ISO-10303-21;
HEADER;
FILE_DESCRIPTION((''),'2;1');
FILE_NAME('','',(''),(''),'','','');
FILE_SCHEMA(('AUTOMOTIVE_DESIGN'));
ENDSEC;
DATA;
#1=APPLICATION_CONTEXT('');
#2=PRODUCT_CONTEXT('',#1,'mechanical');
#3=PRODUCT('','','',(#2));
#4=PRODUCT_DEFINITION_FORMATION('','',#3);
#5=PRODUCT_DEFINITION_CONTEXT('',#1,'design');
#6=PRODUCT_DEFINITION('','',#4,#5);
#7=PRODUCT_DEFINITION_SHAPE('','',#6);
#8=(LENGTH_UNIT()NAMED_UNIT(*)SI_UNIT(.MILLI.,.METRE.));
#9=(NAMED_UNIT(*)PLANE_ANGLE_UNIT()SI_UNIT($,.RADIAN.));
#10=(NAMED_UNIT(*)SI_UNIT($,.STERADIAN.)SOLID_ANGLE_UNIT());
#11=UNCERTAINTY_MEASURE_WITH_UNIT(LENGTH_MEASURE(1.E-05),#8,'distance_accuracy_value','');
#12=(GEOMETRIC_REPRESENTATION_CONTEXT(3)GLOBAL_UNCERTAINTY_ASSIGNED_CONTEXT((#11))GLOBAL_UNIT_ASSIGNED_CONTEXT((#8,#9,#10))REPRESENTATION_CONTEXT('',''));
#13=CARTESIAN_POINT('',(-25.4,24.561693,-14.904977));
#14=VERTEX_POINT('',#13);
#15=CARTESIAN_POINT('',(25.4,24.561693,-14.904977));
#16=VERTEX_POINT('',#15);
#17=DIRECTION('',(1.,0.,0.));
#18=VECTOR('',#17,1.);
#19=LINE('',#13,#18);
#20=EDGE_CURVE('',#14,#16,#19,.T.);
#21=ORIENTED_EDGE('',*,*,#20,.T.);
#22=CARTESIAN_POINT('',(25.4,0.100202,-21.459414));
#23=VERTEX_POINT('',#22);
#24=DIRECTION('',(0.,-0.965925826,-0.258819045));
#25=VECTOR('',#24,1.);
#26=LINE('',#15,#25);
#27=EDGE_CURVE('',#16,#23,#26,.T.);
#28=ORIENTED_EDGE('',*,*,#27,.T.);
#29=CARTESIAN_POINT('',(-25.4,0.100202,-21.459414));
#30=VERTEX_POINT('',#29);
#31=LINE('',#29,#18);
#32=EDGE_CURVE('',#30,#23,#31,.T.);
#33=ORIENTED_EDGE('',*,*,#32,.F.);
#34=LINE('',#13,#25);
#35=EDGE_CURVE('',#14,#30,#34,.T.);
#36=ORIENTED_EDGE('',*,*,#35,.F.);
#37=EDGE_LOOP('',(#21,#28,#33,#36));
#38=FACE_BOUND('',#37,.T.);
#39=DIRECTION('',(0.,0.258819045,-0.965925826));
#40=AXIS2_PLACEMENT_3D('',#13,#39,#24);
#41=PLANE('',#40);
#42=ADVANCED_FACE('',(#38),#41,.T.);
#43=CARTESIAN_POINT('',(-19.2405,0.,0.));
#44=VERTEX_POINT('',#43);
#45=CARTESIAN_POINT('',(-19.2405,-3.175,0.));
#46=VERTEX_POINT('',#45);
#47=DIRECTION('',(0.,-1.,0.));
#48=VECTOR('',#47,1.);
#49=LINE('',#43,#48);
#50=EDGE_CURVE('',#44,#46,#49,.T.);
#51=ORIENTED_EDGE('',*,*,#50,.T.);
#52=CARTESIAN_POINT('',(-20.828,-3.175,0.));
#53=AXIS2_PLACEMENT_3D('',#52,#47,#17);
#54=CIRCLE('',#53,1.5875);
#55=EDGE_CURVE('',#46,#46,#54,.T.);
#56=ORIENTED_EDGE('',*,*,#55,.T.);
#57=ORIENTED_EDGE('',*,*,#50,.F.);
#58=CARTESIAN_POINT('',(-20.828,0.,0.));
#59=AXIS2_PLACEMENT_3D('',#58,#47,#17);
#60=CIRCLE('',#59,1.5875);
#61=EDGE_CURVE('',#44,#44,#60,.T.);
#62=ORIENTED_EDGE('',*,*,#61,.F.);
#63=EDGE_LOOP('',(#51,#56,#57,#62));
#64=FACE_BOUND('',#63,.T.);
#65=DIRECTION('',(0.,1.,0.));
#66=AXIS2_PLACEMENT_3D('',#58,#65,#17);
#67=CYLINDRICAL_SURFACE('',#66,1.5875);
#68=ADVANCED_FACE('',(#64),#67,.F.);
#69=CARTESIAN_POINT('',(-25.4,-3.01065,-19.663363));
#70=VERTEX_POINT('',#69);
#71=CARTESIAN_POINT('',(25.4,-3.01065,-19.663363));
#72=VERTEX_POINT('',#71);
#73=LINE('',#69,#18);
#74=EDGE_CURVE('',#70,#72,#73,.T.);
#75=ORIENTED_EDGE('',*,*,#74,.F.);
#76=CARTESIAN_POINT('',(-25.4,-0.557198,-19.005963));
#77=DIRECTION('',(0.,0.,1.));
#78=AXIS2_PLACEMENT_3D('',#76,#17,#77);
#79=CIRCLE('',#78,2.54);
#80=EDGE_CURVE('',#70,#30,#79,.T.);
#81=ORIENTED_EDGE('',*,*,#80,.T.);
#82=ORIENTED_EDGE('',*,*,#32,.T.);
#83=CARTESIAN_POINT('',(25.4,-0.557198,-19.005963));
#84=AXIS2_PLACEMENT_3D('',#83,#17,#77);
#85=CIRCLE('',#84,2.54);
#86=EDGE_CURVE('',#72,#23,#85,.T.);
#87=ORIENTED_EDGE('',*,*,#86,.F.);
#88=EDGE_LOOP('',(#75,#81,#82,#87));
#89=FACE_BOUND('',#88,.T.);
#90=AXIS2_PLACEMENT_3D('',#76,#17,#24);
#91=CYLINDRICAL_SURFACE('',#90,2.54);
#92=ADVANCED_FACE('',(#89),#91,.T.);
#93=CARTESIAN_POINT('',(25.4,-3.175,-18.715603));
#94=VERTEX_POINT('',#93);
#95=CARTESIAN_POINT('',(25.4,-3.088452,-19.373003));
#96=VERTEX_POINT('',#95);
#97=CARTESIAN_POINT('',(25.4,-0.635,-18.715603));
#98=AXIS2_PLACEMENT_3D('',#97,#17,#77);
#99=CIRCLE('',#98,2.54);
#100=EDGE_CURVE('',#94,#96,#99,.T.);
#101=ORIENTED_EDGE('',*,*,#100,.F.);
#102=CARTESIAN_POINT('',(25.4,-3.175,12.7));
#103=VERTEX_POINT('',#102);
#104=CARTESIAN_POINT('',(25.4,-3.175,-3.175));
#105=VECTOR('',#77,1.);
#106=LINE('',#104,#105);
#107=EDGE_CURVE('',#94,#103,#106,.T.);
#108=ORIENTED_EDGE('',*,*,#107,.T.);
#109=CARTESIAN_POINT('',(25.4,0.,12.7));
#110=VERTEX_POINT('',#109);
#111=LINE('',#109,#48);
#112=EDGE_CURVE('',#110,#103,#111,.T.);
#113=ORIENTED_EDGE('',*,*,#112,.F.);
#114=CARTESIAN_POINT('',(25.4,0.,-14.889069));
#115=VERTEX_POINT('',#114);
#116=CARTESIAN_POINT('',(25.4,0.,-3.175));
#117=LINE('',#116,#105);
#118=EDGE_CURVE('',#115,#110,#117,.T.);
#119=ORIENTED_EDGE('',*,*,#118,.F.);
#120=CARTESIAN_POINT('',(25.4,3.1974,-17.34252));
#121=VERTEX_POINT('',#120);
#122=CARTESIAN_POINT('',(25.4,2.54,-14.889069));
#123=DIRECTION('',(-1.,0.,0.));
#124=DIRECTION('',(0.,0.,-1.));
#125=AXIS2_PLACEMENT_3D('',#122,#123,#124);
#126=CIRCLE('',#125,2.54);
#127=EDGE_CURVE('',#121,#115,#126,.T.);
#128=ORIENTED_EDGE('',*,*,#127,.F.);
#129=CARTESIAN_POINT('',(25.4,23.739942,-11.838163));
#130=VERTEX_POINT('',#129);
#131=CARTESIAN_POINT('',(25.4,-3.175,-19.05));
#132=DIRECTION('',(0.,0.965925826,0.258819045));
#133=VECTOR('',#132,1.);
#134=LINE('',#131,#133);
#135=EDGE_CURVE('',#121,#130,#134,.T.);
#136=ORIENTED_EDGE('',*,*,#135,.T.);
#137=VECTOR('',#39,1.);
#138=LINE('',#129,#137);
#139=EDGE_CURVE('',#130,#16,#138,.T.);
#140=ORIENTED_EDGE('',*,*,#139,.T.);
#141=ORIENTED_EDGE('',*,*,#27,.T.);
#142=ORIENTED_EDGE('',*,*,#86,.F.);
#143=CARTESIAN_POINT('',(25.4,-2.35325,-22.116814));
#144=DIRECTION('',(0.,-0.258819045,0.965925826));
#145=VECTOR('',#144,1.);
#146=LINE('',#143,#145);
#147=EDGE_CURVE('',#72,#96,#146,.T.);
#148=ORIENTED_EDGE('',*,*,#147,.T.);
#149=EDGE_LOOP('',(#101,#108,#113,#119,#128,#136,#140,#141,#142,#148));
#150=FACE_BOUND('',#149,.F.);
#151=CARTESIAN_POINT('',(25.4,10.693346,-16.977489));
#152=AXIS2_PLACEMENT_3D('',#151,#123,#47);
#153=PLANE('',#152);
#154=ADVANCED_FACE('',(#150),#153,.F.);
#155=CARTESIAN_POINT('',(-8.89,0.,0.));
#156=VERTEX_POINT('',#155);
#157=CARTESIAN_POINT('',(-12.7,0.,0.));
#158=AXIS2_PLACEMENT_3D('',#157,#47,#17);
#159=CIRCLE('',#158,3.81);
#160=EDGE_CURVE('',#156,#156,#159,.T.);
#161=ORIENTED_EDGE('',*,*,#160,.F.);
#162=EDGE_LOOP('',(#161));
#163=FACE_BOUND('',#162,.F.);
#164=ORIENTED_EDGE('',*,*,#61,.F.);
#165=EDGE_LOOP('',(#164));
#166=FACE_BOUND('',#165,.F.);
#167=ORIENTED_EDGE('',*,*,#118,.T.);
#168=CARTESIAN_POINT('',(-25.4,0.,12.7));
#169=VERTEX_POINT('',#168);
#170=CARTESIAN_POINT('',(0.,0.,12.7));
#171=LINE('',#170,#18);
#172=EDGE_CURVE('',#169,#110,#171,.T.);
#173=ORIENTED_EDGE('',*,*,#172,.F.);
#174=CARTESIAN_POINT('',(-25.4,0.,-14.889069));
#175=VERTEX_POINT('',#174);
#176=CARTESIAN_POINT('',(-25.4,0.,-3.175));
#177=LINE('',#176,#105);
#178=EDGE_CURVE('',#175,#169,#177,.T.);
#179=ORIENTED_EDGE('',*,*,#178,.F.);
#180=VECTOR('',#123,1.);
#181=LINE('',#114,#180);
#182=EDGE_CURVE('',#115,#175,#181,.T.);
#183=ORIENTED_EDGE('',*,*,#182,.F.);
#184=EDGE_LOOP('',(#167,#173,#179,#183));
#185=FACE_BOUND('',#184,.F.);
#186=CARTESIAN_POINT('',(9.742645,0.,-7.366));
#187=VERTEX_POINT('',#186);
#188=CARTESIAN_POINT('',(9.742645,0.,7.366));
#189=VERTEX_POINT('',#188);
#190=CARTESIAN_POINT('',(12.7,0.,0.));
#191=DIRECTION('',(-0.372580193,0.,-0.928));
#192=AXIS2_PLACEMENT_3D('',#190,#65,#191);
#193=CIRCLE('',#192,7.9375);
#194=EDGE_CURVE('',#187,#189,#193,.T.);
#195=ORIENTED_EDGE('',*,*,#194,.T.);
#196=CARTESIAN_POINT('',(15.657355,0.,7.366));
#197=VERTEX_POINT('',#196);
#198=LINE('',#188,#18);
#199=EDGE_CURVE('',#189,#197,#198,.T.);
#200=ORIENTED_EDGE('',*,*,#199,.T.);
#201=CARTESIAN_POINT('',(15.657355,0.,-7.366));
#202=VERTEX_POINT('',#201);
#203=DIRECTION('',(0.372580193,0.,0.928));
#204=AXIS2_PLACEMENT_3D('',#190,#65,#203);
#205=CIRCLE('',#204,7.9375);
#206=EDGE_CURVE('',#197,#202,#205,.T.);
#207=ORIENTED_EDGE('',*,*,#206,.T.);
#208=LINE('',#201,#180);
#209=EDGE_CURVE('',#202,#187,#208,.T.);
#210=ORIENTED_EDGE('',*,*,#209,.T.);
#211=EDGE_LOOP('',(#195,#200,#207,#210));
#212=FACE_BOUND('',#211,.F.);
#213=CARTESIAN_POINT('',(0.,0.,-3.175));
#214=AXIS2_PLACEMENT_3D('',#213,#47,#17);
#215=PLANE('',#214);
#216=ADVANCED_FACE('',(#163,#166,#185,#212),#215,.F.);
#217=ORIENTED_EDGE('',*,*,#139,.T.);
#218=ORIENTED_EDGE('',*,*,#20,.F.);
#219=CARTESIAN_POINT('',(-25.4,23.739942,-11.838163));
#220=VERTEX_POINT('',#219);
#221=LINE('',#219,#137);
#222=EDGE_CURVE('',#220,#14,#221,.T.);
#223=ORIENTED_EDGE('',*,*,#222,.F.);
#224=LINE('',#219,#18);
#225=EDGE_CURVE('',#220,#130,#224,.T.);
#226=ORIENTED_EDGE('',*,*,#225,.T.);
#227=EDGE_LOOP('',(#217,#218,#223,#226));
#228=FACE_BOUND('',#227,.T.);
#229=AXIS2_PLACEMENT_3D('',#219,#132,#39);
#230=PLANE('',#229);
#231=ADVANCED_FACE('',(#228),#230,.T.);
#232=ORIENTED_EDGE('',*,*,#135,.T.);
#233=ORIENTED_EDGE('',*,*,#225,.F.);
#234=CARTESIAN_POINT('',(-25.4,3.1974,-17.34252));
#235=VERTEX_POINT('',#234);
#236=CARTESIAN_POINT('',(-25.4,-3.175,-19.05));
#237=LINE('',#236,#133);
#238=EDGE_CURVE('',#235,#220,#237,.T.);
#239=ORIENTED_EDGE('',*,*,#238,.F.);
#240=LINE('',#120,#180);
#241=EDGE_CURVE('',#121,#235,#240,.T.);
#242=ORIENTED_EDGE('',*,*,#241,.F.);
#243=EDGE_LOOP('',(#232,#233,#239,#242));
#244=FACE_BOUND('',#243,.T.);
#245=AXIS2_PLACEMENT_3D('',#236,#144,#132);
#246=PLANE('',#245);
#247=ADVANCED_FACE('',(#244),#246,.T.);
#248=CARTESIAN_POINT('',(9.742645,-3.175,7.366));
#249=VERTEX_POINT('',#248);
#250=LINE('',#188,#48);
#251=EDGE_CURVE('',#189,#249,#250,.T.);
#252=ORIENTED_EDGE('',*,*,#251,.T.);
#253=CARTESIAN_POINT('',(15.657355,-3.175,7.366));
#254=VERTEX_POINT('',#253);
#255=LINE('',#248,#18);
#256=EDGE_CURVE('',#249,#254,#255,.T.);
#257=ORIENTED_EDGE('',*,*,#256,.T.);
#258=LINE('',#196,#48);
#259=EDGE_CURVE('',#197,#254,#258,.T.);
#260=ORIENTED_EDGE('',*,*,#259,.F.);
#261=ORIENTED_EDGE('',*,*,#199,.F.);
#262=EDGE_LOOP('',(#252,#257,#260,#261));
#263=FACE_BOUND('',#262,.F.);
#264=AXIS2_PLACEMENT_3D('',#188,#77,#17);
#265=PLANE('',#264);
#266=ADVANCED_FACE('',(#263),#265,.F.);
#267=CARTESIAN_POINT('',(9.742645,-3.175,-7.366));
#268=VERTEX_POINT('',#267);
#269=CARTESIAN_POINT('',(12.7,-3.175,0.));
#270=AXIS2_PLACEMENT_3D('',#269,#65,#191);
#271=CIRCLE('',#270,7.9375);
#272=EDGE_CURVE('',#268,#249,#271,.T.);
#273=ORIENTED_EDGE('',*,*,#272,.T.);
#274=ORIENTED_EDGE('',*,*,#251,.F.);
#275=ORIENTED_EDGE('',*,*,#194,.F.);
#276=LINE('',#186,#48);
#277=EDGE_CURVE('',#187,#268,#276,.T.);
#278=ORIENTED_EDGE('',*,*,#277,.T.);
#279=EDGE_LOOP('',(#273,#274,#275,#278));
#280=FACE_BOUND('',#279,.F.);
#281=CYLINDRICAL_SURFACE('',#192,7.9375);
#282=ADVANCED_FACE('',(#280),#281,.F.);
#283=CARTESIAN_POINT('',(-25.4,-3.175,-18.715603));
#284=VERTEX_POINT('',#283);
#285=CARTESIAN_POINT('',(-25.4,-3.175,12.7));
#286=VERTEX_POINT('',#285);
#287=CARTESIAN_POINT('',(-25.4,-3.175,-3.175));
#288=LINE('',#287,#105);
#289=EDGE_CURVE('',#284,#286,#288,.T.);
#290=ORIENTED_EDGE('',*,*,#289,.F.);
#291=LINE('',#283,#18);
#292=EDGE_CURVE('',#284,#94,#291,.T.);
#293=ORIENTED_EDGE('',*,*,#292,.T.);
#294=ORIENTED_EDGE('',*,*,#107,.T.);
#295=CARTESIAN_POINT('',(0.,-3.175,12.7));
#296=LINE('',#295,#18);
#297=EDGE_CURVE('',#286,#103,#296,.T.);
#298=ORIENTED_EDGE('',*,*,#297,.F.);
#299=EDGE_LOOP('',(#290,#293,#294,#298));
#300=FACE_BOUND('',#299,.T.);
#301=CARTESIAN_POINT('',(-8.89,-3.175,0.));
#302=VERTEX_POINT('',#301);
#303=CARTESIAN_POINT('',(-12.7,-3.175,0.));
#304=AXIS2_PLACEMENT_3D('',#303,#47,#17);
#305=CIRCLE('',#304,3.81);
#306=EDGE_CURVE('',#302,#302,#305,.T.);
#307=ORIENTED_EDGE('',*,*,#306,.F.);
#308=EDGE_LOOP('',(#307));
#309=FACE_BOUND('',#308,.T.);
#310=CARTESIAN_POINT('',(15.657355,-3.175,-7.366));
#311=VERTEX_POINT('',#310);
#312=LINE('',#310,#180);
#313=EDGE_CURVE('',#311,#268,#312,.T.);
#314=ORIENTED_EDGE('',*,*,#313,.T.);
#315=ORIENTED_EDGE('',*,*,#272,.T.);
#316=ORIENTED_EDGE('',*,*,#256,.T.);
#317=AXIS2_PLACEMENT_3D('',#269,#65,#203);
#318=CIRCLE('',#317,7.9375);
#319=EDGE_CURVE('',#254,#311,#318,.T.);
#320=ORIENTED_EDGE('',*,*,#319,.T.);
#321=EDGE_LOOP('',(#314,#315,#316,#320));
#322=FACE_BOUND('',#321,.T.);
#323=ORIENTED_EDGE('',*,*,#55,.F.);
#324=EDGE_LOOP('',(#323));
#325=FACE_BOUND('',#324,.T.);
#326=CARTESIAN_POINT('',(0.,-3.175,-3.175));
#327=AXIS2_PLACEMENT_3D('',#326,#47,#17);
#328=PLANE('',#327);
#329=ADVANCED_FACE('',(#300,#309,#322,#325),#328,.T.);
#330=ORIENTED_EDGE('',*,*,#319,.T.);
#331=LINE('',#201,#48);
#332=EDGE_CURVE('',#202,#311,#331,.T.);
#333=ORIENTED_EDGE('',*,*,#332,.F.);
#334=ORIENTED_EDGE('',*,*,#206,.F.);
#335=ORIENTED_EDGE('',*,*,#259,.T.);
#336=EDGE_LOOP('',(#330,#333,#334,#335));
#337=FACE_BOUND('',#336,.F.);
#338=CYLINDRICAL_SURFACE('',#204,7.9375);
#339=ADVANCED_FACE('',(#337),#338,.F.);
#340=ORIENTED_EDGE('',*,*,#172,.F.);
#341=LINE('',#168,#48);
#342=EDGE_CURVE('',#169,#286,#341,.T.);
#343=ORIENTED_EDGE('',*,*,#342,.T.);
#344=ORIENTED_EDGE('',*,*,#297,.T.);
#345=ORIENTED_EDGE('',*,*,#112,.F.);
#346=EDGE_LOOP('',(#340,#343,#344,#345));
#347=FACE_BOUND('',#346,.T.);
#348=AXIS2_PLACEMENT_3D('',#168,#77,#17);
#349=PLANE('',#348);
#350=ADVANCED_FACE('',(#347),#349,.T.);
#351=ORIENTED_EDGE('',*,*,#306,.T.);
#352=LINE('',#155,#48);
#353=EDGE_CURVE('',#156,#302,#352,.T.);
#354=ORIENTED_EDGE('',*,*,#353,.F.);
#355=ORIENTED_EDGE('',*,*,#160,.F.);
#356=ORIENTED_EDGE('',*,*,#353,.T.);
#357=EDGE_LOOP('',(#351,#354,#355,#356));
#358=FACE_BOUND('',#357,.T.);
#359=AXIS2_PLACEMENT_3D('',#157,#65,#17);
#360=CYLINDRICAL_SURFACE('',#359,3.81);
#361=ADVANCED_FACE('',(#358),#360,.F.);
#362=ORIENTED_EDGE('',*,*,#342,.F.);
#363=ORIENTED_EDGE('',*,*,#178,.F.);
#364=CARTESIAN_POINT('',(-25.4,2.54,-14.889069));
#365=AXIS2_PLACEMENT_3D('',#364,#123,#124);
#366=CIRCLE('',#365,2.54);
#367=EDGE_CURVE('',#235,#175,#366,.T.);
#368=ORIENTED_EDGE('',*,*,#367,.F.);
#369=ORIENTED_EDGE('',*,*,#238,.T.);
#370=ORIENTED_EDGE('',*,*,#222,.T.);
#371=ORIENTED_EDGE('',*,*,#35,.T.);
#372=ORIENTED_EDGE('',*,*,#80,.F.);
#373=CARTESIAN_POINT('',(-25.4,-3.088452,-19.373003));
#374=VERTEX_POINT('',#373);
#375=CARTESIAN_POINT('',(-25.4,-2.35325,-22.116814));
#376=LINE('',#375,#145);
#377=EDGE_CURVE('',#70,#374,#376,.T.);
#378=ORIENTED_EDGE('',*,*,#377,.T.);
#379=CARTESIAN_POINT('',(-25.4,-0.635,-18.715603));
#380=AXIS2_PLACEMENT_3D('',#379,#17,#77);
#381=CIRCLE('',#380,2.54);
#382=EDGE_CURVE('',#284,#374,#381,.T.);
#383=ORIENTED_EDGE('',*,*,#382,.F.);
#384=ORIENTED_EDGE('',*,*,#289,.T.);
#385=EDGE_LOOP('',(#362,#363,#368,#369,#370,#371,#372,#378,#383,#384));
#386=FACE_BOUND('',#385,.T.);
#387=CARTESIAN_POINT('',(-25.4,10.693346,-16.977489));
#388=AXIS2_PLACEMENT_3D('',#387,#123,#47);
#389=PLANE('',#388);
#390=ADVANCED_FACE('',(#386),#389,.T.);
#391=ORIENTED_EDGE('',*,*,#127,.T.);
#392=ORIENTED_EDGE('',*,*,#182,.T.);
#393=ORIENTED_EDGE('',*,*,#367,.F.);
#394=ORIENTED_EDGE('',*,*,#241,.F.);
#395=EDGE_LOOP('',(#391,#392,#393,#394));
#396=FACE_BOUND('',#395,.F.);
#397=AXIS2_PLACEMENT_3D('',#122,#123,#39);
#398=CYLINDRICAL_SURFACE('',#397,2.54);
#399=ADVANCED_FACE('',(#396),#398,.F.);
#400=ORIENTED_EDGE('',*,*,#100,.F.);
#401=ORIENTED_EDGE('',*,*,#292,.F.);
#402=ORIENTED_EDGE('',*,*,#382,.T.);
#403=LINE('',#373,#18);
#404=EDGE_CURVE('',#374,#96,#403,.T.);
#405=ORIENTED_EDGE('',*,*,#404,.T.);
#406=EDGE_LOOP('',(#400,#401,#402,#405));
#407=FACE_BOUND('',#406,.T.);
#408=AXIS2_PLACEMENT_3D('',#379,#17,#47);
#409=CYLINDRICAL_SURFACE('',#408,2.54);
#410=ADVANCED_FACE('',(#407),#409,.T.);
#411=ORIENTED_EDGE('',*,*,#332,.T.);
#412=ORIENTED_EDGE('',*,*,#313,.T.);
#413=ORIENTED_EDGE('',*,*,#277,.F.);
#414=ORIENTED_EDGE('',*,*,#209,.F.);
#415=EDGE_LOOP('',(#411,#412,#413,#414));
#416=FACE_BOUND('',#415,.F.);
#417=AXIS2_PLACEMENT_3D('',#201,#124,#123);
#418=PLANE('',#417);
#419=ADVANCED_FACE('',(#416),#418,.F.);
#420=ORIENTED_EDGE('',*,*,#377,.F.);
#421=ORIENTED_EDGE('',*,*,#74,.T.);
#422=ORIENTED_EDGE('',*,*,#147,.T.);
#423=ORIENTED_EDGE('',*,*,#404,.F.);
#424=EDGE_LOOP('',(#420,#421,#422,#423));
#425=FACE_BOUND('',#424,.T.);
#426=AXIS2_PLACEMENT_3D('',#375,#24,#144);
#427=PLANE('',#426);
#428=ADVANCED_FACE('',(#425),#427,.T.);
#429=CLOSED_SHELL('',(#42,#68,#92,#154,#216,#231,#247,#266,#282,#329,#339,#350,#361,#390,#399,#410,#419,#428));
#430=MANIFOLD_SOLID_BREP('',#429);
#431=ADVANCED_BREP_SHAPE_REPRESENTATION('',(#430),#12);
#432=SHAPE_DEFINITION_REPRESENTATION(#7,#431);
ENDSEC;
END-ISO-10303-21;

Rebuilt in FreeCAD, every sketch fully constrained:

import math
import FreeCAD as App
import Part
import Sketcher

V = App.Vector
Q = App.Units.Quantity


def edges_at(feature, points):
    """Names of the edges that pass closest to the given points."""
    edges = feature.Shape.Edges
    near = lambda p: min(range(len(edges)), key=lambda i: edges[i].distToShape(Part.Vertex(*p))[0])
    return sorted({f"Edge{near(p) + 1}" for p in points})


def add_polygon(sketch, points):
    """Adds a closed chain of lines whose ends are joined by coincident constraints."""
    first, n = sketch.GeometryCount, len(points)
    for a, b in zip(points, points[1:] + points[:1]):
        sketch.addGeometry(Part.LineSegment(App.Vector(*a, 0), App.Vector(*b, 0)), False)
    for i in range(n):
        sketch.addConstraint(Sketcher.Constraint("Coincident", first + i, 2, first + (i + 1) % n, 1))

doc = App.newDocument("Part")
body = doc.addObject("PartDesign::Body", "Body")

# Sketch on XZ plane
sketch1 = doc.addObject("Sketcher::SketchObject", "Sketch")
body.addObject(sketch1)
sketch1.AttachmentSupport = (doc.XZ_Plane, [""])
sketch1.MapMode = "FlatFace"
add_polygon(sketch1, [(-25.4, 12.7), (-25.4, -19.1), (25.4, -19.1), (25.4, 12.7)])  # lines 0-3
sketch1.addGeometry(Part.Circle(V(-20.8, 0, 0), V(0, 0, 1), 1.6), False)  # 4
sketch1.addGeometry(Part.Circle(V(-12.7, 0, 0), V(0, 0, 1), 3.8), False)  # 5
sketch1.addGeometry(Part.LineSegment(V(15.7, -7.4, 0), V(9.7, -7.4, 0)), False)  # 6
sketch1.addGeometry(Part.ArcOfCircle(Part.Circle(V(12.7, 0, 0), V(0, 0, 1), 7.9), math.radians(112), math.radians(248)), False)  # 7
sketch1.addGeometry(Part.LineSegment(V(9.7, 7.4, 0), V(15.7, 7.4, 0)), False)  # 8
sketch1.addGeometry(Part.ArcOfCircle(Part.Circle(V(12.7, 0, 0), V(0, 0, 1), 7.9), math.radians(-68), math.radians(68)), False)  # 9
sketch1.addConstraint(Sketcher.Constraint("Coincident", 6, 2, 7, 2))
sketch1.addConstraint(Sketcher.Constraint("Coincident", 7, 1, 8, 1))
sketch1.addConstraint(Sketcher.Constraint("Coincident", 8, 2, 9, 2))
sketch1.addConstraint(Sketcher.Constraint("Coincident", 9, 1, 6, 1))
sketch1.addConstraint(Sketcher.Constraint("Vertical", 0))
sketch1.addConstraint(Sketcher.Constraint("Horizontal", 1))
sketch1.addConstraint(Sketcher.Constraint("Vertical", 2))
sketch1.addConstraint(Sketcher.Constraint("Horizontal", 3))
sketch1.addConstraint(Sketcher.Constraint("Horizontal", 6))
sketch1.addConstraint(Sketcher.Constraint("Horizontal", 8))
sketch1.addConstraint(Sketcher.Constraint("Coincident", 9, 3, 7, 3))
sketch1.addConstraint(Sketcher.Constraint("Equal", 7, 9))
sketch1.addConstraint(Sketcher.Constraint("Symmetric", 5, 3, 7, 3, -1, 1))
sketch1.addConstraint(Sketcher.Constraint("Symmetric", 6, 2, 7, 1, -1))
sketch1.addConstraint(Sketcher.Constraint("PointOnObject", 4, 3, -1))
sketch1.addConstraint(Sketcher.Constraint("Diameter", 5, Q("0.3 in")))
sketch1.addConstraint(Sketcher.Constraint("DistanceX", 1, 1, 1, 2, Q("2 in")))
sketch1.addConstraint(Sketcher.Constraint("Diameter", 4, Q("0.125 in")))
sketch1.addConstraint(Sketcher.Constraint("DistanceX", 0, 2, -1, 1, Q("1 in")))
sketch1.addConstraint(Sketcher.Constraint("Radius", 7, Q("0.3125 in")))
sketch1.addConstraint(Sketcher.Constraint("DistanceX", 5, 3, 7, 3, Q("1 in")))
sketch1.addConstraint(Sketcher.Constraint("DistanceY", 0, 2, 0, 1, Q("1.25 in")))
sketch1.addConstraint(Sketcher.Constraint("DistanceY", -1, 1, 2, 2, Q("0.5 in")))
sketch1.addConstraint(Sketcher.Constraint("DistanceX", 4, 3, -1, 1, Q("0.82 in")))
sketch1.addConstraint(Sketcher.Constraint("DistanceY", 6, 2, -1, 1, Q("0.29 in")))
pad1 = doc.addObject("PartDesign::Pad", "Pad")
body.addObject(pad1)
pad1.Profile = sketch1
pad1.Length = Q("0.125 in")

# Sketch on YZ plane
sketch2 = doc.addObject("Sketcher::SketchObject", "Sketch001")
body.addObject(sketch2)
sketch2.AttachmentSupport = (doc.YZ_Plane, [""])
sketch2.MapMode = "FlatFace"
sketch2.AttachmentOffset = App.Placement(V(0, 0, -1 * 25.4), App.Rotation())
add_polygon(sketch2, [(-2.4, -22.1), (-3.2, -19.1), (23.7, -11.8), (24.6, -14.9)])  # lines 0-3
sketch2.addConstraint(Sketcher.Constraint("Perpendicular", 0, 1))
sketch2.addConstraint(Sketcher.Constraint("Perpendicular", 1, 2))
sketch2.addConstraint(Sketcher.Constraint("Perpendicular", 2, 3))
sketch2.addConstraint(Sketcher.Constraint("Angle", 0, Q("105 deg")))
sketch2.addConstraint(Sketcher.Constraint("DistanceY", 0, 2, -1, 1, Q("0.75 in")))
sketch2.addConstraint(Sketcher.Constraint("Distance", 0, Q("0.125 in")))
sketch2.addConstraint(Sketcher.Constraint("DistanceX", 0, 2, -1, 1, Q("0.125 in")))
sketch2.addConstraint(Sketcher.Constraint("Distance", 1, 27.864399))
pad2 = doc.addObject("PartDesign::Pad", "Pad001")
body.addObject(pad2)
pad2.Profile = sketch2
pad2.Length = Q("2 in")
doc.recompute()

fillet = doc.addObject("PartDesign::Fillet", "Fillet")
body.addObject(fillet)
fillet.Base = (pad2, edges_at(pad2, [(0, 0, -18.199)]))
fillet.Radius = Q("0.1 in")
doc.recompute()

fillet2 = doc.addObject("PartDesign::Fillet", "Fillet001")
body.addObject(fillet2)
fillet2.Base = (fillet, edges_at(fillet, [(0, -2.353, -22.117), (0, -3.175, -19.05)]))
fillet2.Radius = Q("0.1 in")

doc.recompute()
